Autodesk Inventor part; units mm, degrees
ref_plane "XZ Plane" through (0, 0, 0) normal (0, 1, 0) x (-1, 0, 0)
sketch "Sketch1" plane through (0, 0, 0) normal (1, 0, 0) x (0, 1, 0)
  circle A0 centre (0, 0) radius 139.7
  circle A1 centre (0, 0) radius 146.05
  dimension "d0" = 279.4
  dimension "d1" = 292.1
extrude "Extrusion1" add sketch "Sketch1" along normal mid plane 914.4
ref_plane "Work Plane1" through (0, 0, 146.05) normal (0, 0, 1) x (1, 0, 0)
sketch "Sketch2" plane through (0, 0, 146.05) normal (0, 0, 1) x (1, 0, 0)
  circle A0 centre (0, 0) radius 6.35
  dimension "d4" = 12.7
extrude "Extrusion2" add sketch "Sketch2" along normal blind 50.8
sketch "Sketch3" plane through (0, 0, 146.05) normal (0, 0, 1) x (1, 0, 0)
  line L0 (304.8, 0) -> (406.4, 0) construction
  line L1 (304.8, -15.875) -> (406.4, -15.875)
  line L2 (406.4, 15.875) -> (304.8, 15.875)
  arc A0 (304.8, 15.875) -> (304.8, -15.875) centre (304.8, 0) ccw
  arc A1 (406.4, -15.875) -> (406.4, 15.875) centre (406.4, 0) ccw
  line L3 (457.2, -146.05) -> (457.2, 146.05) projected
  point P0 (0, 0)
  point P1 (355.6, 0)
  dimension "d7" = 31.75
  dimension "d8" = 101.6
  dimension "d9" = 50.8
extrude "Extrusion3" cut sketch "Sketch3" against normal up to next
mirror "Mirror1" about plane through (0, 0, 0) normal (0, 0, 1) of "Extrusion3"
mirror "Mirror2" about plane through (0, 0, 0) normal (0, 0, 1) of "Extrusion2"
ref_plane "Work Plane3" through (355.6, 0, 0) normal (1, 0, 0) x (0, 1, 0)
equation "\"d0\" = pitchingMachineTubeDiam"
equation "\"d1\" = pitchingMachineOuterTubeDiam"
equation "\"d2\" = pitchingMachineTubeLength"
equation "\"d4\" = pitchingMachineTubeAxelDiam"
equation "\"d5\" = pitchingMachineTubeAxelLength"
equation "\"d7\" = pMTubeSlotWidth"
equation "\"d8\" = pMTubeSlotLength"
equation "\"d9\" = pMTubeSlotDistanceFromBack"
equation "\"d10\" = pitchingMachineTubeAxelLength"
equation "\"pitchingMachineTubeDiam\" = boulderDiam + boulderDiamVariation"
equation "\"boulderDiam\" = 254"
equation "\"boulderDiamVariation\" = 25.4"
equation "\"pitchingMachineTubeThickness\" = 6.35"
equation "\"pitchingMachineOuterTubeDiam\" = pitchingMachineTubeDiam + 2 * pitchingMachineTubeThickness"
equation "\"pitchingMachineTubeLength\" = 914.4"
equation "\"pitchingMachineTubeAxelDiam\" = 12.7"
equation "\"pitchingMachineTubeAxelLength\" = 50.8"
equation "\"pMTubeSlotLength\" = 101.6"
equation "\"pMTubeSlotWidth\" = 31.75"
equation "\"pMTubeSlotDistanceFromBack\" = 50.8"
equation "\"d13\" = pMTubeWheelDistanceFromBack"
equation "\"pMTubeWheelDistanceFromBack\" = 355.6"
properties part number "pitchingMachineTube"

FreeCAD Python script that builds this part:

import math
import FreeCAD as App
import Part
import Sketcher
Q = App.Units.Quantity

doc = App.newDocument("Part")
body = doc.addObject("PartDesign::Body", "Body")
body.AllowCompound = True

# Sketch on YZ plane
sketch1 = doc.addObject("Sketcher::SketchObject", "Sketch")
body.addObject(sketch1)
sketch1.AttachmentSupport = (doc.YZ_Plane, [""])
sketch1.MapMode = "FlatFace"
sketch1.addGeometry(Part.Circle(App.Vector(0, 0, 0), App.Vector(0, 0, 1), 146.05), False)
sketch1.addGeometry(Part.Circle(App.Vector(0, 0, 0), App.Vector(0, 0, 1), 139.7), False)
sketch1.addConstraint(Sketcher.Constraint("Coincident", 0, 3, -1, 1))
sketch1.addConstraint(Sketcher.Constraint("Coincident", 1, 3, -1, 1))
sketch1.addConstraint(Sketcher.Constraint("Diameter", 1, Q("11 in")))
sketch1.addConstraint(Sketcher.Constraint("Diameter", 0, Q("11.5 in")))
pad1 = doc.addObject("PartDesign::Pad", "Pad")
body.addObject(pad1)
pad1.Profile = sketch1
pad1.Length = Q("36 in")
pad1.Midplane = True

# Sketch on XY plane
sketch2 = doc.addObject("Sketcher::SketchObject", "Sketch001")
body.addObject(sketch2)
sketch2.AttachmentSupport = (doc.XY_Plane, [""])
sketch2.MapMode = "FlatFace"
sketch2.AttachmentOffset = App.Placement(App.Vector(0, 0, 5.75 * 25.4), App.Rotation())
sketch2.addGeometry(Part.Circle(App.Vector(0, 0, 0), App.Vector(0, 0, 1), 6.35), False)
sketch2.addConstraint(Sketcher.Constraint("Coincident", 0, 3, -1, 1))
sketch2.addConstraint(Sketcher.Constraint("Diameter", 0, Q("0.5 in")))
pad2 = doc.addObject("PartDesign::Pad", "Pad001")
body.addObject(pad2)
pad2.Profile = sketch2
pad2.Length = Q("2 in")

# Sketch on XY plane
sketch3 = doc.addObject("Sketcher::SketchObject", "Sketch002")
body.addObject(sketch3)
sketch3.AttachmentSupport = (doc.XY_Plane, [""])
sketch3.MapMode = "FlatFace"
sketch3.AttachmentOffset = App.Placement(App.Vector(0, 0, 5.75 * 25.4), App.Rotation())
sketch3.addGeometry(Part.ArcOfCircle(Part.Circle(App.Vector(304.8, 0, 0), App.Vector(0, 0, 1), 15.875), math.radians(90), math.radians(270)), False)
sketch3.addGeometry(Part.LineSegment(App.Vector(304.8, -15.875, 0), App.Vector(406.4, -15.875, 0)), False)
sketch3.addGeometry(Part.ArcOfCircle(Part.Circle(App.Vector(406.4, 0, 0), App.Vector(0, 0, 1), 15.875), math.radians(-90), math.radians(90)), False)
sketch3.addGeometry(Part.LineSegment(App.Vector(406.4, 15.875, 0), App.Vector(304.8, 15.875, 0)), False)
sketch3.addConstraint(Sketcher.Constraint("Tangent", 0, 2, 1, 1))
sketch3.addConstraint(Sketcher.Constraint("Tangent", 1, 2, 2, 1))
sketch3.addConstraint(Sketcher.Constraint("Tangent", 2, 2, 3, 1))
sketch3.addConstraint(Sketcher.Constraint("Tangent", 3, 2, 0, 1))
sketch3.addConstraint(Sketcher.Constraint("Horizontal", 1))
sketch3.addConstraint(Sketcher.Constraint("Horizontal", 3))
sketch3.addConstraint(Sketcher.Constraint("PointOnObject", 0, 3, -1))
sketch3.addConstraint(Sketcher.Constraint("DistanceX", 1, 1, 1, 2, Q("4 in")))
sketch3.addConstraint(Sketcher.Constraint("Radius", 0, Q("0.625 in")))
sketch3.addConstraint(Sketcher.Constraint("DistanceX", -1, 1, 0, 3, Q("12 in")))
pocket1 = doc.addObject("PartDesign::Pocket", "Pocket")
body.addObject(pocket1)
pocket1.Profile = sketch3
pocket1.Type = "UpToFirst"
doc.recompute()

mirrored = doc.addObject("PartDesign::Mirrored", "Mirrored")
body.addObject(mirrored)
mirrored.Originals = [pocket1]
mirrored.MirrorPlane = (doc.XY_Plane, [""])
body.Tip = mirrored
doc.recompute()

mirrored2 = doc.addObject("PartDesign::Mirrored", "Mirrored001")
body.addObject(mirrored2)
mirrored2.Originals = [pad2]
mirrored2.MirrorPlane = (doc.XY_Plane, [""])
body.Tip = mirrored2

doc.recompute()
